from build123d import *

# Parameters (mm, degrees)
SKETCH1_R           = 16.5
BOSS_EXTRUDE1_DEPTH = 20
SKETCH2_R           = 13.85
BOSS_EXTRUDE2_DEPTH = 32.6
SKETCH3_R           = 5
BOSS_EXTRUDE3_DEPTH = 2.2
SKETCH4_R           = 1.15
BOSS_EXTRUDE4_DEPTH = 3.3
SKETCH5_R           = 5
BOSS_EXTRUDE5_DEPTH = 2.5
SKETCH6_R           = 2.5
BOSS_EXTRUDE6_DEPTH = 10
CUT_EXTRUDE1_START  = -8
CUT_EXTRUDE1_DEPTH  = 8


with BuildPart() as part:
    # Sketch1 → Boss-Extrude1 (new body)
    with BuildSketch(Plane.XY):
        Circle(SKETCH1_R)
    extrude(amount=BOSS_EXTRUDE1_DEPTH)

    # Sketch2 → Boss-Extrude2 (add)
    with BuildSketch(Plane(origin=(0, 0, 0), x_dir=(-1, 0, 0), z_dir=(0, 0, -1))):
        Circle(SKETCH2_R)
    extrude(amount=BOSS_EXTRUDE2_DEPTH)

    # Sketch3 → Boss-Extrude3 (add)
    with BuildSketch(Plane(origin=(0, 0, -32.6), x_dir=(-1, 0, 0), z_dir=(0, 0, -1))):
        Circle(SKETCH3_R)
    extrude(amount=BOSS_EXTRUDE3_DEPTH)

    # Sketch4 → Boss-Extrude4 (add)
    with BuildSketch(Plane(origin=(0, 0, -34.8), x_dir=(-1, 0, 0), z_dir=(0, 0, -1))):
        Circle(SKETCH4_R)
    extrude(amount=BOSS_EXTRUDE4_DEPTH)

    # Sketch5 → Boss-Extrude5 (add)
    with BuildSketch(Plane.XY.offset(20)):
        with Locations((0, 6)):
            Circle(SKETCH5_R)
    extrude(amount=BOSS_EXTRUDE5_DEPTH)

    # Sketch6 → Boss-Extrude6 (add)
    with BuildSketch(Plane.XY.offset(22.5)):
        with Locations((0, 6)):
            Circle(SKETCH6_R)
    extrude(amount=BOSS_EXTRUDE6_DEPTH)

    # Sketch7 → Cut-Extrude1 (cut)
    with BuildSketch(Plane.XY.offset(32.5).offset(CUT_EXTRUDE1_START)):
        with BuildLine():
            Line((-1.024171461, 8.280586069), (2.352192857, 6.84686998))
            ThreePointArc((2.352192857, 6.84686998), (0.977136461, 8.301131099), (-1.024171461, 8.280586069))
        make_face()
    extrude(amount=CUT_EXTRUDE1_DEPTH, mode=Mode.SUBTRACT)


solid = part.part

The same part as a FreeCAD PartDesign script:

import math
import FreeCAD as App
import Part
import Sketcher

V = App.Vector
Q = App.Units.Quantity

doc = App.newDocument("Part")
body = doc.addObject("PartDesign::Body", "Body")

# Sketch on XY plane
sketch1 = doc.addObject("Sketcher::SketchObject", "Sketch")
body.addObject(sketch1)
sketch1.AttachmentSupport = (doc.XY_Plane, [""])
sketch1.MapMode = "FlatFace"
sketch1.addGeometry(Part.Circle(V(0, 0, 0), V(0, 0, 1), 16), False)
sketch1.addConstraint([
    Sketcher.Constraint("Coincident", 0, 3, -1, 1),
    Sketcher.Constraint("Diameter", 0, Q("33 mm")),
])
pad1 = doc.addObject("PartDesign::Pad", "Pad")
body.addObject(pad1)
pad1.Profile = sketch1
pad1.Length = 20

# Sketch on XY plane
sketch2 = doc.addObject("Sketcher::SketchObject", "Sketch001")
body.addObject(sketch2)
sketch2.AttachmentSupport = (doc.XY_Plane, [""])
sketch2.MapMode = "FlatFace"
sketch2.addGeometry(Part.Circle(V(0, 0, 0), V(0, 0, 1), 14), False)
sketch2.addConstraint([
    Sketcher.Constraint("Coincident", 0, 3, -1, 1),
    Sketcher.Constraint("Diameter", 0, Q("27.7 mm")),
])
pad2 = doc.addObject("PartDesign::Pad", "Pad001")
body.addObject(pad2)
pad2.Profile = sketch2
pad2.Length = 32.6
pad2.Reversed = True

# Sketch on XY plane
sketch3 = doc.addObject("Sketcher::SketchObject", "Sketch002")
body.addObject(sketch3)
sketch3.AttachmentSupport = (doc.XY_Plane, [""])
sketch3.MapMode = "FlatFace"
sketch3.AttachmentOffset = App.Placement(V(0, 0, -32.6), App.Rotation())
sketch3.addGeometry(Part.Circle(V(0, 0, 0), V(0, 0, 1), 5), False)
sketch3.addConstraint([
    Sketcher.Constraint("Coincident", 0, 3, -1, 1),
    Sketcher.Constraint("Diameter", 0, Q("10 mm")),
])
pad3 = doc.addObject("PartDesign::Pad", "Pad002")
body.addObject(pad3)
pad3.Profile = sketch3
pad3.Length = 2.2
pad3.Reversed = True

# Sketch on XY plane
sketch4 = doc.addObject("Sketcher::SketchObject", "Sketch003")
body.addObject(sketch4)
sketch4.AttachmentSupport = (doc.XY_Plane, [""])
sketch4.MapMode = "FlatFace"
sketch4.AttachmentOffset = App.Placement(V(0, 0, -34.8), App.Rotation())
sketch4.addGeometry(Part.Circle(V(0, 0, 0), V(0, 0, 1), 1.1), False)
sketch4.addConstraint([
    Sketcher.Constraint("Coincident", 0, 3, -1, 1),
    Sketcher.Constraint("Diameter", 0, Q("2.3 mm")),
])
pad4 = doc.addObject("PartDesign::Pad", "Pad003")
body.addObject(pad4)
pad4.Profile = sketch4
pad4.Length = 3.3
pad4.Reversed = True

# Sketch on XY plane
sketch5 = doc.addObject("Sketcher::SketchObject", "Sketch004")
body.addObject(sketch5)
sketch5.AttachmentSupport = (doc.XY_Plane, [""])
sketch5.MapMode = "FlatFace"
sketch5.AttachmentOffset = App.Placement(V(0, 0, 20), App.Rotation())
sketch5.addGeometry(Part.Circle(V(0, 6, 0), V(0, 0, 1), 5), False)
sketch5.addConstraint([
    Sketcher.Constraint("PointOnObject", 0, 3, -2),
    Sketcher.Constraint("Diameter", 0, Q("10 mm")),
    Sketcher.Constraint("DistanceY", -1, 1, 0, 3, Q("6 mm")),
])
pad5 = doc.addObject("PartDesign::Pad", "Pad004")
body.addObject(pad5)
pad5.Profile = sketch5
pad5.Length = 2.5

# Sketch on XY plane
sketch6 = doc.addObject("Sketcher::SketchObject", "Sketch005")
body.addObject(sketch6)
sketch6.AttachmentSupport = (doc.XY_Plane, [""])
sketch6.MapMode = "FlatFace"
sketch6.AttachmentOffset = App.Placement(V(0, 0, 22.5), App.Rotation())
sketch6.addGeometry(Part.Circle(V(0, 6, 0), V(0, 0, 1), 2.5), False)
sketch6.addConstraint([
    Sketcher.Constraint("PointOnObject", 0, 3, -2),
    Sketcher.Constraint("Diameter", 0, Q("5 mm")),
    Sketcher.Constraint("DistanceY", -1, 1, 0, 3, Q("6 mm")),
])
pad6 = doc.addObject("PartDesign::Pad", "Pad005")
body.addObject(pad6)
pad6.Profile = sketch6
pad6.Length = 10

# Sketch on XY plane
sketch7 = doc.addObject("Sketcher::SketchObject", "Sketch006")
body.addObject(sketch7)
sketch7.AttachmentSupport = (doc.XY_Plane, [""])
sketch7.MapMode = "FlatFace"
sketch7.AttachmentOffset = App.Placement(V(0, 0, 24.5), App.Rotation())
sketch7.addGeometry([
    Part.LineSegment(V(-1, 8.3, 0), V(2.4, 6.8, 0)),
    Part.ArcOfCircle(Part.Circle(V(0, 6, 0), V(0, 0, 1), 2.5), math.radians(20), math.radians(114)),
], False)
sketch7.addConstraint([
    Sketcher.Constraint("Coincident", 0, 1, 1, 2),
    Sketcher.Constraint("Coincident", 1, 1, 0, 2),
    Sketcher.Constraint("PointOnObject", 1, 3, -2),
    Sketcher.Constraint("Radius", 1, Q("2.5 mm")),
    Sketcher.Constraint("DistanceY", -1, 1, 1, 3, Q("6 mm")),
    Sketcher.Constraint("DistanceX", 0, 1, -1, 1, Q("1.024171 mm")),
    Sketcher.Constraint("DistanceY", -1, 1, 1, 1, Q("6.84687 mm")),
])
pocket1 = doc.addObject("PartDesign::Pocket", "Pocket")
body.addObject(pocket1)
pocket1.Profile = sketch7
pocket1.Length = 8
pocket1.Reversed = True

doc.recompute()
